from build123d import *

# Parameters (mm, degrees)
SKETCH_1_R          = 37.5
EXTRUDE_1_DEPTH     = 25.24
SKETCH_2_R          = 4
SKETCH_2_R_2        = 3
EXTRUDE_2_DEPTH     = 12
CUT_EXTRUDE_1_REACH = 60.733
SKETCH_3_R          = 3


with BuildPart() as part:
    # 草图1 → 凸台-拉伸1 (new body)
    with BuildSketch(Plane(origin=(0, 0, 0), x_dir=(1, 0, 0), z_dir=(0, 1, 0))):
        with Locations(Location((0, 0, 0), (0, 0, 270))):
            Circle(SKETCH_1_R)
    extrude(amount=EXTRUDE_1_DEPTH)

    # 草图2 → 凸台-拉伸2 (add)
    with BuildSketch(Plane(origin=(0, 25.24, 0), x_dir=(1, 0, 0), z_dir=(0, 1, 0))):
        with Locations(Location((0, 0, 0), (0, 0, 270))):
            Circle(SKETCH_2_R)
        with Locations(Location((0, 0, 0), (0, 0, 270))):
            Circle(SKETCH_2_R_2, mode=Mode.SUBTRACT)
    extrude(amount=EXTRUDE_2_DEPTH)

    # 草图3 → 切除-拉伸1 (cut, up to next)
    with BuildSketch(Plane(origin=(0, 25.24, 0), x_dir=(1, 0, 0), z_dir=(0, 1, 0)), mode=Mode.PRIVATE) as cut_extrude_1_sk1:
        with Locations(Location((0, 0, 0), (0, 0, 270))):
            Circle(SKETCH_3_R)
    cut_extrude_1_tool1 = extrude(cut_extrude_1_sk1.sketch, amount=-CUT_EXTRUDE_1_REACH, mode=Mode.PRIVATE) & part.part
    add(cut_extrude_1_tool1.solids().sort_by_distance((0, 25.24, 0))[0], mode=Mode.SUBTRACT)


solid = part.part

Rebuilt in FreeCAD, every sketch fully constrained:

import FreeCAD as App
import Part
import Sketcher
from FreeCAD import Vector

doc = App.newDocument("Part")
params = doc.addObject("Spreadsheet::Sheet", "Params")
for row, (alias, value) in enumerate([
    ("sketch1_diameter", "75 mm"),
    ("pad1_length", "25.24 mm"),
    ("sketch2_diameter", "8 mm"),
    ("sketch2_diameter2", "6 mm"),
    ("pad2_length", "12 mm"),
    ("sketch3_diameter", "6 mm"),
], start=1):
    params.set(f"A{row}", alias)
    params.set(f"B{row}", "=" + value)
    params.setAlias(f"B{row}", alias)

body = doc.addObject("PartDesign::Body", "Body")

# Sketch on XZ plane
sketch1 = doc.addObject("Sketcher::SketchObject", "Sketch")
body.addObject(sketch1)
sketch1.AttachmentSupport = (doc.XZ_Plane, [""])
sketch1.MapMode = "FlatFace"
sketch1.addGeometry(Part.Circle(Vector(0, 0, 0), Vector(0, 0, 1), 38), False)
sketch1.addConstraint([
    Sketcher.Constraint("Coincident", 0, 3, -1, 1),
    Sketcher.Constraint("Diameter", 0, 75.0),
])
sketch1.setExpression("Constraints[1]", "Params.sketch1_diameter")
pad1 = doc.addObject("PartDesign::Pad", "Pad")
body.addObject(pad1)
pad1.Profile = sketch1
pad1.setExpression("Length", "Params.pad1_length")
pad1.Reversed = True

# Sketch on XZ plane
sketch2 = doc.addObject("Sketcher::SketchObject", "Sketch001")
body.addObject(sketch2)
sketch2.AttachmentSupport = (doc.XZ_Plane, [""])
sketch2.MapMode = "FlatFace"
sketch2.AttachmentOffset = App.Placement(Vector(0, 0, -25.24), App.Rotation())
sketch2.addGeometry([
    Part.Circle(Vector(0, 0, 0), Vector(0, 0, 1), 4),
    Part.Circle(Vector(0, 0, 0), Vector(0, 0, 1), 3),
], False)
sketch2.addConstraint([
    Sketcher.Constraint("Coincident", 0, 3, -1, 1),
    Sketcher.Constraint("Coincident", 1, 3, -1, 1),
    Sketcher.Constraint("Diameter", 0, 8.0),
    Sketcher.Constraint("Diameter", 1, 6.0),
])
sketch2.setExpression("Constraints[2]", "Params.sketch2_diameter")
sketch2.setExpression("Constraints[3]", "Params.sketch2_diameter2")
pad2 = doc.addObject("PartDesign::Pad", "Pad001")
body.addObject(pad2)
pad2.Profile = sketch2
pad2.setExpression("Length", "Params.pad2_length")
pad2.Reversed = True

# Sketch on XZ plane
sketch3 = doc.addObject("Sketcher::SketchObject", "Sketch002")
body.addObject(sketch3)
sketch3.AttachmentSupport = (doc.XZ_Plane, [""])
sketch3.MapMode = "FlatFace"
sketch3.AttachmentOffset = App.Placement(Vector(0, 0, -25.24), App.Rotation())
sketch3.addGeometry(Part.Circle(Vector(0, 0, 0), Vector(0, 0, 1), 3), False)
sketch3.addConstraint([
    Sketcher.Constraint("Coincident", 0, 3, -1, 1),
    Sketcher.Constraint("Diameter", 0, 6.0),
])
sketch3.setExpression("Constraints[1]", "Params.sketch3_diameter")
pocket1 = doc.addObject("PartDesign::Pocket", "Pocket")
body.addObject(pocket1)
pocket1.Profile = sketch3
pocket1.Type = "UpToFirst"
pocket1.Reversed = True

doc.recompute()
